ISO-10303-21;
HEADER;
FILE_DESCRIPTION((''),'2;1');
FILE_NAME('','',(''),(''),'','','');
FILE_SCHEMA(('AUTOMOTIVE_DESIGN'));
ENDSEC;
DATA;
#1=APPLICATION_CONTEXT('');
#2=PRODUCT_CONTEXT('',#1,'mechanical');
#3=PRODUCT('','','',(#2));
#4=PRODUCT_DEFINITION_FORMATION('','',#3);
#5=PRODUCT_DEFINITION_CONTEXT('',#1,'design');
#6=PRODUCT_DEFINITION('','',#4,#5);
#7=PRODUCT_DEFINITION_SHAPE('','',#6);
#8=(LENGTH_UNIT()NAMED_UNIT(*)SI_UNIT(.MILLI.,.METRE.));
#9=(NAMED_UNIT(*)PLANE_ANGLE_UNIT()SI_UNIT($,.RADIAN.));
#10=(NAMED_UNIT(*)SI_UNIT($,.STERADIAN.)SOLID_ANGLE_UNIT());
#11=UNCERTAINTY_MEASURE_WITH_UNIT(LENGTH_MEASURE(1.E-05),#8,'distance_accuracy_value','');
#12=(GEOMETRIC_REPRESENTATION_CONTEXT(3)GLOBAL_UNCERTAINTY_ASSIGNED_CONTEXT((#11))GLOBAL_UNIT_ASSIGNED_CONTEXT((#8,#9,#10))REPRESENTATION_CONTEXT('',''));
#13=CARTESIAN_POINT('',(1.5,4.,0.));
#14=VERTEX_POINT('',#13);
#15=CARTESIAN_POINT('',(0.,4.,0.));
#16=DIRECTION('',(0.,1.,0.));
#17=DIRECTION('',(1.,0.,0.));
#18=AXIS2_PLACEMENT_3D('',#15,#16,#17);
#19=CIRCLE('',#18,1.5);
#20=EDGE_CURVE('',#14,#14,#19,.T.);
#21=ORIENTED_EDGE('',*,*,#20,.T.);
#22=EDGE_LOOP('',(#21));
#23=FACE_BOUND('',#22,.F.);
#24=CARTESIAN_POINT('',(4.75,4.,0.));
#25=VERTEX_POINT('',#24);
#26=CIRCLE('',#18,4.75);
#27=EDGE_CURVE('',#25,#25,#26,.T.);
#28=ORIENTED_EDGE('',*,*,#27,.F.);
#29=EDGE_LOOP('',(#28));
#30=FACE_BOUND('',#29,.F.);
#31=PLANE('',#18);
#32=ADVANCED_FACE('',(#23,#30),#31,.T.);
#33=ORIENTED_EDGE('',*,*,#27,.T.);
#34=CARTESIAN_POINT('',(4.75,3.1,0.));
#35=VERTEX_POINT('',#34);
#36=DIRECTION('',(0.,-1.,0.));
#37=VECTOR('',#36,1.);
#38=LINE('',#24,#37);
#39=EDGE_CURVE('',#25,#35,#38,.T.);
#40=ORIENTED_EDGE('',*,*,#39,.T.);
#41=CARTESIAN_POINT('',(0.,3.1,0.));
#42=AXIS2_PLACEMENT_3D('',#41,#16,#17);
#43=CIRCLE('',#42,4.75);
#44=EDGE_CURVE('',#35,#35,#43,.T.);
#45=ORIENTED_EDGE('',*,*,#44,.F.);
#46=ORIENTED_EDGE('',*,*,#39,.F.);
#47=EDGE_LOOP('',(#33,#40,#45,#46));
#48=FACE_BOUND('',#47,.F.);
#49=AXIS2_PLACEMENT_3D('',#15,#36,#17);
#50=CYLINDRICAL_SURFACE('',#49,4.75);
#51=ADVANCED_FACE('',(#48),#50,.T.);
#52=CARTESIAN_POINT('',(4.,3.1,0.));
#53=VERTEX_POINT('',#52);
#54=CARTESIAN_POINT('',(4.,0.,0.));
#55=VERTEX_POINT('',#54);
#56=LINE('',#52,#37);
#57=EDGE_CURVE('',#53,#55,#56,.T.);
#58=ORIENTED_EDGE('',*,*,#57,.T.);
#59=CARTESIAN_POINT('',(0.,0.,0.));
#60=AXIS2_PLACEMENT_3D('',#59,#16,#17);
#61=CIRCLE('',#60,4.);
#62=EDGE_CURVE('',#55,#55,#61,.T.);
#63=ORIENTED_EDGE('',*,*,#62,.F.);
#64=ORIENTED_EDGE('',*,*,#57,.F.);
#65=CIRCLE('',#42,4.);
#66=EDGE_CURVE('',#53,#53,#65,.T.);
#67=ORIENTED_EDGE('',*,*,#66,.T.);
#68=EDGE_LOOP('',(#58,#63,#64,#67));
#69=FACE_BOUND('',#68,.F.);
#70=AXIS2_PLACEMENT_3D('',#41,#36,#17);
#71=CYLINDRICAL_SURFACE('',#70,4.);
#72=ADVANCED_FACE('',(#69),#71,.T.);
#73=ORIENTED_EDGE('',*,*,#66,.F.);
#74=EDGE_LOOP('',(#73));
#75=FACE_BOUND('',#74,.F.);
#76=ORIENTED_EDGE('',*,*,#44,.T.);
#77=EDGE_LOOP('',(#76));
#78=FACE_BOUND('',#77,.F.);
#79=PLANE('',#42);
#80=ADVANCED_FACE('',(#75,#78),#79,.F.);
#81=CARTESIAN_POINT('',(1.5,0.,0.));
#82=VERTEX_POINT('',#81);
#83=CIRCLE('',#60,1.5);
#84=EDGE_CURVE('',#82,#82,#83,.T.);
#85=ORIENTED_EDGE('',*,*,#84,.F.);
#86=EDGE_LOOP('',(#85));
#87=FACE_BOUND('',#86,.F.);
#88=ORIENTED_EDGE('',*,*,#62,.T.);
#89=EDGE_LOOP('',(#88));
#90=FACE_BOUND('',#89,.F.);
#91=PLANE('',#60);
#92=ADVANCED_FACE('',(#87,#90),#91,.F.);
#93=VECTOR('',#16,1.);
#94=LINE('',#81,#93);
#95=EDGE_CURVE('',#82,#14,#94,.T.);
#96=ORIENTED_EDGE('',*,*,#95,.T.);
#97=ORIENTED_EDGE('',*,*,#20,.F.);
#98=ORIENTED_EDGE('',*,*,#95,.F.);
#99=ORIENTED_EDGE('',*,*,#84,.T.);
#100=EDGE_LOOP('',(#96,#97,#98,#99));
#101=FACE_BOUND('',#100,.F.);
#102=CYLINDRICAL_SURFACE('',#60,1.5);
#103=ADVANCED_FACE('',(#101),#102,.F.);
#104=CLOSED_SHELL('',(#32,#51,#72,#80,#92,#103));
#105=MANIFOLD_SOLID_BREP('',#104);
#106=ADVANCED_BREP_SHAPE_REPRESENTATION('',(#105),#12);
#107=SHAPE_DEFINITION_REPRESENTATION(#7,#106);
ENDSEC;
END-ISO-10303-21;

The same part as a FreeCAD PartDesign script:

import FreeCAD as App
import Part
import Sketcher

V = App.Vector


def add_polygon(sketch, points):
    """Adds a closed chain of lines whose ends are joined by coincident constraints."""
    first, n = sketch.GeometryCount, len(points)
    for a, b in zip(points, points[1:] + points[:1]):
        sketch.addGeometry(Part.LineSegment(App.Vector(*a, 0), App.Vector(*b, 0)), False)
    for i in range(n):
        sketch.addConstraint(Sketcher.Constraint("Coincident", first + i, 2, first + (i + 1) % n, 1))

doc = App.newDocument("Part")
body = doc.addObject("PartDesign::Body", "Body")

# Sketch on XY plane
sketch1 = body.newObject("Sketcher::SketchObject", "Sketch")
sketch1.AttachmentSupport = (doc.getObject("XY_Plane"), [""])
sketch1.MapMode = "FlatFace"
add_polygon(sketch1, [(4.8, 4), (1.5, 4), (1.5, 0), (4, 0), (4, 3.1), (4.8, 3.1)])  # lines 0-5
sketch1.addConstraint([
    Sketcher.Constraint("Horizontal", 0),
    Sketcher.Constraint("Vertical", 1),
    Sketcher.Constraint("Horizontal", 2),
    Sketcher.Constraint("Vertical", 3),
    Sketcher.Constraint("Horizontal", 4),
    Sketcher.Constraint("Vertical", 5),
    Sketcher.Constraint("PointOnObject", 1, 2, -1),
    Sketcher.Constraint("DistanceY", 1, 2, 1, 1, 4.0),
    Sketcher.Constraint("DistanceX", 2, 1, 2, 2, 2.5),
    Sketcher.Constraint("DistanceY", 3, 1, 3, 2, 3.1),
    Sketcher.Constraint("DistanceX", -1, 1, 2, 2, 4.0),
    Sketcher.Constraint("DistanceX", 0, 2, 0, 1, 3.25),
])
revolution = body.newObject("PartDesign::Revolution", "Revolution")
revolution.Profile = sketch1
revolution.ReferenceAxis = (sketch1, ["V_Axis"])
revolution.Angle = 360

doc.recompute()
